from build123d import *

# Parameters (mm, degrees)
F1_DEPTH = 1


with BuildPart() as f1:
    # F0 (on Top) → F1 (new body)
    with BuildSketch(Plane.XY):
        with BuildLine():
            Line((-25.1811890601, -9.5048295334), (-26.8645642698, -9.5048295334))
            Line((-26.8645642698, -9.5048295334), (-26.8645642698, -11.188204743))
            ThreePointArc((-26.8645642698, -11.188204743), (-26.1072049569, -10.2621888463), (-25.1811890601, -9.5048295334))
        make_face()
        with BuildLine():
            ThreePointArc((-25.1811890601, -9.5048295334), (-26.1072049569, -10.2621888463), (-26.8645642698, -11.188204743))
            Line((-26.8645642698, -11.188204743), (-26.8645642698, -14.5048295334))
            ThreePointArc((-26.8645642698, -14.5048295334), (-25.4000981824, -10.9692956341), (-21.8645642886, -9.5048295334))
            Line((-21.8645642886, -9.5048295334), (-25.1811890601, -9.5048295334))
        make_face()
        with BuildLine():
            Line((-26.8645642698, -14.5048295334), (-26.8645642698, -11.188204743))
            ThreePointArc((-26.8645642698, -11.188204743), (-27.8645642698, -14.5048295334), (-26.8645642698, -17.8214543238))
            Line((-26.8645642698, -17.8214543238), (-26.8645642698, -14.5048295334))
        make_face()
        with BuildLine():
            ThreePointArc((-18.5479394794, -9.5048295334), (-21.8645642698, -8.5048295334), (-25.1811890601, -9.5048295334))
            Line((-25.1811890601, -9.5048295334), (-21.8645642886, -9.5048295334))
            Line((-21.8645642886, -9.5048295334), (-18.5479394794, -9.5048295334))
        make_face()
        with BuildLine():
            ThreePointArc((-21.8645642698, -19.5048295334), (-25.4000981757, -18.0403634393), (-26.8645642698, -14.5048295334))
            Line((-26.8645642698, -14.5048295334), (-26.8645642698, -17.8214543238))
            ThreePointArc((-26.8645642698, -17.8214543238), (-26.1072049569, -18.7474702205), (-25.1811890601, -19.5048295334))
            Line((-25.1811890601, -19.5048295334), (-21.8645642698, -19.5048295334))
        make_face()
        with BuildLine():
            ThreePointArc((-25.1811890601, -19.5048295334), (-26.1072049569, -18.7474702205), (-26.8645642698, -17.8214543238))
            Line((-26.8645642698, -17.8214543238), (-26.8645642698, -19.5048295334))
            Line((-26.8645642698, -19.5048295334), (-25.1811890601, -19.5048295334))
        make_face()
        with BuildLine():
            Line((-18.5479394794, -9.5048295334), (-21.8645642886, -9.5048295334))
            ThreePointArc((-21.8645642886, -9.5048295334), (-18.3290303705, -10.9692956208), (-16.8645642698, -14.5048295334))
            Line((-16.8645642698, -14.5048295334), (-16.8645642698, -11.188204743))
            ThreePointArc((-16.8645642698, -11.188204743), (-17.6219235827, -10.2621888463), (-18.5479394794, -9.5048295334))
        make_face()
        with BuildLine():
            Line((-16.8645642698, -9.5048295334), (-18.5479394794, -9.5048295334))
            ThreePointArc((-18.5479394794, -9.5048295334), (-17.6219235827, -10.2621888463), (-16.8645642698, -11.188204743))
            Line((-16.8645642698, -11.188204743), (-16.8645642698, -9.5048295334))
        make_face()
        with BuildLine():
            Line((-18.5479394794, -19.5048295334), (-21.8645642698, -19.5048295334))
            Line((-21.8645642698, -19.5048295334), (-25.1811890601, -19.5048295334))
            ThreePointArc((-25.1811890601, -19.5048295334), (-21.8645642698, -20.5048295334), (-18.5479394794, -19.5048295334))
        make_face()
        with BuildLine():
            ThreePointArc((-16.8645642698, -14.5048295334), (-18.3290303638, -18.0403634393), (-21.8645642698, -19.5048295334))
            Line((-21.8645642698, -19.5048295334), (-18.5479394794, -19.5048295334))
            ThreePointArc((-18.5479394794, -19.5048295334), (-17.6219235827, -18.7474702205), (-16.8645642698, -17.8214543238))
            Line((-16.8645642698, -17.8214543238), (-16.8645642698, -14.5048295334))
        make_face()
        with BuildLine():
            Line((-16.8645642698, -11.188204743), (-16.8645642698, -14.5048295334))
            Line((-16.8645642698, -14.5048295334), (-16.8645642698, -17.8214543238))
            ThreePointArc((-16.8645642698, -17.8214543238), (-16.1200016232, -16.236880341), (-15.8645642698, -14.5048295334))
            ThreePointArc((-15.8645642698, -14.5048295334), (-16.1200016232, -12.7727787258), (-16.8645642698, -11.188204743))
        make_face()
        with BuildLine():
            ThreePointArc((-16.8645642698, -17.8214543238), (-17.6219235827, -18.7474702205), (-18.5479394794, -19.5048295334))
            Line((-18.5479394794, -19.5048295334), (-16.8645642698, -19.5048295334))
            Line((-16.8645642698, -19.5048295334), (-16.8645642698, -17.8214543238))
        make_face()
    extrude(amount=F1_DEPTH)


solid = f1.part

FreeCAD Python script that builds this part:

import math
import FreeCAD as App
import Part
import Sketcher
from FreeCAD import Vector
Q = App.Units.Quantity

doc = App.newDocument("Part")
body = doc.addObject("PartDesign::Body", "Body")

# Sketch on XY plane
sketch1 = body.newObject("Sketcher::SketchObject", "Sketch")
sketch1.AttachmentSupport = (doc.getObject("XY_Plane"), [""])
sketch1.MapMode = "FlatFace"
sketch1.addGeometry([
    Part.ArcOfCircle(Part.Circle(Vector(-21.9, -14.5, 0), Vector(0, 0, 1), 6), math.radians(-34), math.radians(0)),  # 0
    Part.ArcOfCircle(Part.Circle(Vector(-21.9, -14.5, 0), Vector(0, 0, 1), 6), math.radians(0), math.radians(34)),  # 1
    Part.LineSegment(Vector(-16.9, -11.2, 0), Vector(-16.9, -9.5, 0)),  # 2
    Part.LineSegment(Vector(-16.9, -9.5, 0), Vector(-18.5, -9.5, 0)),  # 3
    Part.ArcOfCircle(Part.Circle(Vector(-21.9, -14.5, 0), Vector(0, 0, 1), 6), math.radians(56), math.radians(124)),  # 4
    Part.LineSegment(Vector(-25.2, -9.5, 0), Vector(-26.9, -9.5, 0)),  # 5
    Part.LineSegment(Vector(-26.9, -9.5, 0), Vector(-26.9, -11.2, 0)),  # 6
    Part.ArcOfCircle(Part.Circle(Vector(-21.9, -14.5, 0), Vector(0, 0, 1), 6), math.radians(146), math.radians(214)),  # 7
    Part.LineSegment(Vector(-26.9, -17.8, 0), Vector(-26.9, -19.5, 0)),  # 8
    Part.LineSegment(Vector(-26.9, -19.5, 0), Vector(-25.2, -19.5, 0)),  # 9
    Part.ArcOfCircle(Part.Circle(Vector(-21.9, -14.5, 0), Vector(0, 0, 1), 6), math.radians(-124), math.radians(-56)),  # 10
    Part.LineSegment(Vector(-18.5, -19.5, 0), Vector(-16.9, -19.5, 0)),  # 11
    Part.LineSegment(Vector(-16.9, -19.5, 0), Vector(-16.9, -17.8, 0)),  # 12
    Part.ArcOfCircle(Part.Circle(Vector(-21.9, -14.5, 0), Vector(0, 0, 1), 5), math.radians(0), math.radians(90)),  # 13
    Part.ArcOfCircle(Part.Circle(Vector(-21.9, -14.5, 0), Vector(0, 0, 1), 5), math.radians(-90), math.radians(0)),  # 14
    Part.ArcOfCircle(Part.Circle(Vector(-21.9, -14.5, 0), Vector(0, 0, 1), 5), math.radians(180), math.radians(270)),  # 15
    Part.ArcOfCircle(Part.Circle(Vector(-21.9, -14.5, 0), Vector(0, 0, 1), 5), math.radians(90), math.radians(180)),  # 16
], False)
sketch1.addConstraint([
    Sketcher.Constraint("Tangent", 0, 2, 1, 1),
    Sketcher.Constraint("Coincident", 1, 2, 2, 1),
    Sketcher.Constraint("Coincident", 2, 2, 3, 1),
    Sketcher.Constraint("Coincident", 3, 2, 4, 1),
    Sketcher.Constraint("Coincident", 4, 2, 5, 1),
    Sketcher.Constraint("Coincident", 5, 2, 6, 1),
    Sketcher.Constraint("Coincident", 6, 2, 7, 1),
    Sketcher.Constraint("Coincident", 7, 2, 8, 1),
    Sketcher.Constraint("Coincident", 8, 2, 9, 1),
    Sketcher.Constraint("Coincident", 9, 2, 10, 1),
    Sketcher.Constraint("Coincident", 10, 2, 11, 1),
    Sketcher.Constraint("Coincident", 11, 2, 12, 1),
    Sketcher.Constraint("Coincident", 12, 2, 0, 1),
    Sketcher.Constraint("Tangent", 13, 1, 14, 2),
    Sketcher.Constraint("Tangent", 14, 1, 15, 2),
    Sketcher.Constraint("Tangent", 15, 1, 16, 2),
    Sketcher.Constraint("Tangent", 16, 1, 13, 2),
    Sketcher.Constraint("Vertical", 2),
    Sketcher.Constraint("Horizontal", 3),
    Sketcher.Constraint("Horizontal", 5),
    Sketcher.Constraint("Vertical", 6),
    Sketcher.Constraint("Vertical", 8),
    Sketcher.Constraint("Horizontal", 9),
    Sketcher.Constraint("Horizontal", 11),
    Sketcher.Constraint("Vertical", 12),
    Sketcher.Constraint("Coincident", 4, 3, 0, 3),
    Sketcher.Constraint("Coincident", 7, 3, 0, 3),
    Sketcher.Constraint("Coincident", 10, 3, 0, 3),
    Sketcher.Constraint("Coincident", 13, 3, 0, 3),
    Sketcher.Constraint("Equal", 0, 1),
    Sketcher.Constraint("Equal", 1, 4),
    Sketcher.Constraint("Equal", 4, 7),
    Sketcher.Constraint("Equal", 7, 10),
    Sketcher.Constraint("Equal", 13, 14),
    Sketcher.Constraint("Horizontal", 16, 3, 0, 2),
    Sketcher.Constraint("Horizontal", 3, 2, 4, 2),
    Sketcher.Constraint("Horizontal", 1, 2, 6, 2),
    Sketcher.Constraint("Horizontal", 9, 2, 10, 2),
    Sketcher.Constraint("Horizontal", 7, 2, 12, 2),
    Sketcher.Constraint("Horizontal", 0, 2, 13, 1),
    Sketcher.Constraint("Horizontal", 11, 2, 14, 1),
    Sketcher.Constraint("Horizontal", 13, 1, 15, 1),
    Sketcher.Constraint("Horizontal", 5, 2, 16, 1),
    Sketcher.Constraint("Vertical", 6, 2, 7, 2),
    Sketcher.Constraint("Vertical", 12, 2, 13, 1),
    Sketcher.Constraint("Vertical", 16, 3, 14, 1),
    Sketcher.Constraint("Vertical", 14, 1, 16, 1),
    Sketcher.Constraint("Radius", 0, Q("6 mm")),
    Sketcher.Constraint("Radius", 13, Q("5 mm")),
    Sketcher.Constraint("DistanceY", 0, 3, -1, 1, Q("14.50483 mm")),
    Sketcher.Constraint("DistanceX", 3, 2, -1, 1, Q("18.547939 mm")),
])
pad1 = body.newObject("PartDesign::Pad", "Pad")
pad1.Profile = sketch1
pad1.Length = 1

doc.recompute()
